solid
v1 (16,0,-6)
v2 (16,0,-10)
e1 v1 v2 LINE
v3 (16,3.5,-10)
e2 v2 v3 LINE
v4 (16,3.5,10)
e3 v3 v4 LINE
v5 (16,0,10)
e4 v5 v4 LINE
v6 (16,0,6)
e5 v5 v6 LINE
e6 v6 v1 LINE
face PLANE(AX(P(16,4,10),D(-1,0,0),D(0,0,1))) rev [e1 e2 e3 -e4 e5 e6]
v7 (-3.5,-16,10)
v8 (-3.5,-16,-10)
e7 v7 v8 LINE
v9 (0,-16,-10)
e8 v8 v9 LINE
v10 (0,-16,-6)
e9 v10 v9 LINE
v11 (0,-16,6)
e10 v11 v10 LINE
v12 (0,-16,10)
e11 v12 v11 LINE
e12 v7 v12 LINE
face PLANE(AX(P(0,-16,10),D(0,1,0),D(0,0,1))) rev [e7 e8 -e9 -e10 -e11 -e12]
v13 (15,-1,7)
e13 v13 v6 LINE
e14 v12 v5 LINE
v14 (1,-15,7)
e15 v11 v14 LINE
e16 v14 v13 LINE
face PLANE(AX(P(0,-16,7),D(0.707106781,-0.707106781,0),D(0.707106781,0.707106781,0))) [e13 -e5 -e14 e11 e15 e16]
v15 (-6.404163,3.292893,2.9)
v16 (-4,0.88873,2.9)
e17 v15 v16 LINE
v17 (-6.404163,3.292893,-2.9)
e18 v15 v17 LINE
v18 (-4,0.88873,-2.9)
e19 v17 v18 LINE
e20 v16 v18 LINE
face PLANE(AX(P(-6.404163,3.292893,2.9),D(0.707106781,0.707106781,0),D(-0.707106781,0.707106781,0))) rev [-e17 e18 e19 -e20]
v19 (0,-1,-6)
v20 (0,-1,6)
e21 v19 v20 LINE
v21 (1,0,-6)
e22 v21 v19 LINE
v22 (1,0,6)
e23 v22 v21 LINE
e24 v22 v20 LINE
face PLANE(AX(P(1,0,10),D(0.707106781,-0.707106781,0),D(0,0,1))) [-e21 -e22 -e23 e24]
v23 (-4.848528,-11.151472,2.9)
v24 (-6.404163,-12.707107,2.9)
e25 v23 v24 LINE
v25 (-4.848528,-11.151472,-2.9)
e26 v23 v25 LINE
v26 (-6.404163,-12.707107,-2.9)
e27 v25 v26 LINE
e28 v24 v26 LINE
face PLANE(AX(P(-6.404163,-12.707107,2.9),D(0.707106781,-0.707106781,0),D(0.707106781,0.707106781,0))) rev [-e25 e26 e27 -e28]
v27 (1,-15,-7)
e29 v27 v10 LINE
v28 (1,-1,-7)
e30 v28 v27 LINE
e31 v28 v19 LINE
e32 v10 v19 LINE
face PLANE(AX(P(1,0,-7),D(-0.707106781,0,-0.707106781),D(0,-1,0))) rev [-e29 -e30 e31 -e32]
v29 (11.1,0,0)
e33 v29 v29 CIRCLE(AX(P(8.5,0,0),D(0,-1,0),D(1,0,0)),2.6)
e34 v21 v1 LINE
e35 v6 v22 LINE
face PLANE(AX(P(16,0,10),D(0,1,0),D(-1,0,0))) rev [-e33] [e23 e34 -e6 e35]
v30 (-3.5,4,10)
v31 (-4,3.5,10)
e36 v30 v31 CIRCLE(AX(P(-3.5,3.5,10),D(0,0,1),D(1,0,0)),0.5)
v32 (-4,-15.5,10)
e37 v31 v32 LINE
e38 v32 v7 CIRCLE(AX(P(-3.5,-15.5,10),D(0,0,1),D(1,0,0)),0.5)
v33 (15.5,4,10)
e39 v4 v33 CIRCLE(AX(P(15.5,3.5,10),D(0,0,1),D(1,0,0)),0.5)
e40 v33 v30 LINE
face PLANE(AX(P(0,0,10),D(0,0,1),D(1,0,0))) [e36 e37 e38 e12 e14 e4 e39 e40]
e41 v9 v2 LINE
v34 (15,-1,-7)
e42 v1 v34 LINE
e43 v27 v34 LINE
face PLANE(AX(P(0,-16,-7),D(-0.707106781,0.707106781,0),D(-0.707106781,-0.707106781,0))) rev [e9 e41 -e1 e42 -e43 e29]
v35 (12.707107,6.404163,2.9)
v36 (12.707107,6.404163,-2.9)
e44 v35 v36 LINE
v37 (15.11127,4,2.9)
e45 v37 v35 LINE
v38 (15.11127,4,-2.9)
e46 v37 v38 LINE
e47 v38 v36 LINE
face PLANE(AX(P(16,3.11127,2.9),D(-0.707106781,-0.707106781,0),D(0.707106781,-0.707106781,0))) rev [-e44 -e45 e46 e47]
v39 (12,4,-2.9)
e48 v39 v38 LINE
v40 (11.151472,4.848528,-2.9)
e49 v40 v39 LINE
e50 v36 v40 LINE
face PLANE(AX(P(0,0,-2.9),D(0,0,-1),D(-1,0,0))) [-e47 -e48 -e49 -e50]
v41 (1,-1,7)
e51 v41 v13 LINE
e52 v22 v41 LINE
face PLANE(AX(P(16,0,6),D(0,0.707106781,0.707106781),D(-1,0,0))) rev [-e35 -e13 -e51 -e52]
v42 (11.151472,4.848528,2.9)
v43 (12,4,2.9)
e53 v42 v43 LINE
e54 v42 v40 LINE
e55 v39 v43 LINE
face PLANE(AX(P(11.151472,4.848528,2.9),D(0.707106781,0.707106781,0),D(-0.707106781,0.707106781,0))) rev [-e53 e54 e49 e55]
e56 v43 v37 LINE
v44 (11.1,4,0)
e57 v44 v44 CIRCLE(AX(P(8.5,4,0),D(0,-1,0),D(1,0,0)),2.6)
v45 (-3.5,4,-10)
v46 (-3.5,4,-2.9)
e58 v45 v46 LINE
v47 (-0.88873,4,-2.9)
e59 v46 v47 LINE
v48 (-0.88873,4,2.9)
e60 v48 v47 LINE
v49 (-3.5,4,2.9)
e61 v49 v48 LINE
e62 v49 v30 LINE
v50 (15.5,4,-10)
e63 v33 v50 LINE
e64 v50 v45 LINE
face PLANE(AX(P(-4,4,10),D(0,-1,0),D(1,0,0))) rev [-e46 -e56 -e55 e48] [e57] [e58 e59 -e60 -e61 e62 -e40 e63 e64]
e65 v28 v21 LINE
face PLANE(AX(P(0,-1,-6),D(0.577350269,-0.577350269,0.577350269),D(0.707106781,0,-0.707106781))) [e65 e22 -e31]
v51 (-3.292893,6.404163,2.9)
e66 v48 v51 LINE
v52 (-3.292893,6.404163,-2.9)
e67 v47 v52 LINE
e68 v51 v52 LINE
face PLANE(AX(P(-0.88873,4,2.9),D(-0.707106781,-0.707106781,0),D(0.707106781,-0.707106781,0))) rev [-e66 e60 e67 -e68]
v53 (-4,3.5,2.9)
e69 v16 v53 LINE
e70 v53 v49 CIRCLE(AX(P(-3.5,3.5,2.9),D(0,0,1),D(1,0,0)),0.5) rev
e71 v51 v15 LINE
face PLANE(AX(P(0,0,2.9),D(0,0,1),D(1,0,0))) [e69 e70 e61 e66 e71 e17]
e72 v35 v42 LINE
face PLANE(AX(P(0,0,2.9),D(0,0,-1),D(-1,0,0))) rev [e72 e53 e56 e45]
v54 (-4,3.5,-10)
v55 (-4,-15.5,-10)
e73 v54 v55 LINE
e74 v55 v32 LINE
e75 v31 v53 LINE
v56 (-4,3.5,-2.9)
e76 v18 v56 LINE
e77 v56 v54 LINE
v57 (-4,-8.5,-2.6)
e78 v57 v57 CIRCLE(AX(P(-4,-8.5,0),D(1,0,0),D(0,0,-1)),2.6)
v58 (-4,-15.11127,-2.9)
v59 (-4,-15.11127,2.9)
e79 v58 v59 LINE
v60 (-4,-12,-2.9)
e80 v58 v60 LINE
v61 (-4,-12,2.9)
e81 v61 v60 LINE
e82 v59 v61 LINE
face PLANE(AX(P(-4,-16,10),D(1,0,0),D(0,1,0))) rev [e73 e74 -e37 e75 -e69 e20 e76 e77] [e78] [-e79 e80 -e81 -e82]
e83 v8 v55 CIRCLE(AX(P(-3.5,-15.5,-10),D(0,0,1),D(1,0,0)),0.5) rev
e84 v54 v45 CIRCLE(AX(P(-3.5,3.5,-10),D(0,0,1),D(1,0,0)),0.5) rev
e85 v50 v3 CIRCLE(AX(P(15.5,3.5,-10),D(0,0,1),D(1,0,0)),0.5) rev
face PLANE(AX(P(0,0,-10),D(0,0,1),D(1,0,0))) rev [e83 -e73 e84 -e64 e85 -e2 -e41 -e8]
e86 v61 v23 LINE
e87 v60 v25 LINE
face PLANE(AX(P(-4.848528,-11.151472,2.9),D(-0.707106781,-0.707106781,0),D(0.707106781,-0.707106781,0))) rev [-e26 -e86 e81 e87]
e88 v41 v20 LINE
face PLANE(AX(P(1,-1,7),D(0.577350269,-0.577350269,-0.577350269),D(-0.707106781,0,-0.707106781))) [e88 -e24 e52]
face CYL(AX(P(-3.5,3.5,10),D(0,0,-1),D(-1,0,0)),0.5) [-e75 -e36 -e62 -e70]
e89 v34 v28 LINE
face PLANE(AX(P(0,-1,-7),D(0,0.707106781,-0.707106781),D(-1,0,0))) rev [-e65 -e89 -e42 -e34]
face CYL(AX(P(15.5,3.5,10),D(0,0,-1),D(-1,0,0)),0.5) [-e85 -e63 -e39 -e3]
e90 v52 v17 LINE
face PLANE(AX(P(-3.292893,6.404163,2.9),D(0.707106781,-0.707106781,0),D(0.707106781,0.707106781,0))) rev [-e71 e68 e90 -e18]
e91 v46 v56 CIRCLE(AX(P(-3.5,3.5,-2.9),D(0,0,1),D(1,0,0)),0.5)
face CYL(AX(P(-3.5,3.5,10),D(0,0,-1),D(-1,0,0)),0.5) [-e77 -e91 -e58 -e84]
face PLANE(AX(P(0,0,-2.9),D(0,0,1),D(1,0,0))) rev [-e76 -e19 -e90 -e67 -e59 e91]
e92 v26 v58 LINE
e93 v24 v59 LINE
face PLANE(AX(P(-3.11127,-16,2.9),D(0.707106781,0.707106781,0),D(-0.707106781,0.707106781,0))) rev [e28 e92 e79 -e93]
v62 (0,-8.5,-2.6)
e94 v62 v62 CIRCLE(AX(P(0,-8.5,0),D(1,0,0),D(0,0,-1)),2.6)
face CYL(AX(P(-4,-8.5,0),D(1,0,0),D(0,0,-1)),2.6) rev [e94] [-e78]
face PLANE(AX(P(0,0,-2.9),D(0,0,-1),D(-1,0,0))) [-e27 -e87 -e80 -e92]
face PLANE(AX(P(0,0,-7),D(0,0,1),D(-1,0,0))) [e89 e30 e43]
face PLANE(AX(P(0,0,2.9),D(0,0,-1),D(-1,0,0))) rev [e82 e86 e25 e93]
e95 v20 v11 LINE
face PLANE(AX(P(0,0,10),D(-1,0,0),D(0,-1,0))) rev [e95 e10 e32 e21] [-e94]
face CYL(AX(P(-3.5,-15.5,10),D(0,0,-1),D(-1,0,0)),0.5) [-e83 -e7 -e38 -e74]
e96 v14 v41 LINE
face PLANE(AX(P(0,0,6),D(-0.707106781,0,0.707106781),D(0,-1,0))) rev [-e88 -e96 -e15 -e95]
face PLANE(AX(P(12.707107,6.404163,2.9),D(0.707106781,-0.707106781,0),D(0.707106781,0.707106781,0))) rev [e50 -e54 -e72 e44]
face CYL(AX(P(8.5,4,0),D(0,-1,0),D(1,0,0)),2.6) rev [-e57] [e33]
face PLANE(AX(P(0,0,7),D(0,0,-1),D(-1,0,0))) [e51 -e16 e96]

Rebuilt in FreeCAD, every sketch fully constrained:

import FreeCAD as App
import Part
import Sketcher


def edges_at(feature, points):
    """Names of the edges that pass closest to the given points."""
    edges = feature.Shape.Edges
    near = lambda p: min(range(len(edges)), key=lambda i: edges[i].distToShape(Part.Vertex(*p))[0])
    return sorted({f"Edge{near(p) + 1}" for p in points})


def add_polygon(sketch, points):
    """Adds a closed chain of lines whose ends are joined by coincident constraints."""
    first, n = sketch.GeometryCount, len(points)
    for a, b in zip(points, points[1:] + points[:1]):
        sketch.addGeometry(Part.LineSegment(App.Vector(*a, 0), App.Vector(*b, 0)), False)
    for i in range(n):
        sketch.addConstraint(Sketcher.Constraint("Coincident", first + i, 2, first + (i + 1) % n, 1))

doc = App.newDocument("Part")
body = doc.addObject("PartDesign::Body", "Body")

# Sketch on XY plane
sketch1 = doc.addObject("Sketcher::SketchObject", "Sketch")
body.addObject(sketch1)
sketch1.AttachmentSupport = (doc.XY_Plane, [""])
sketch1.MapMode = "FlatFace"
add_polygon(sketch1, [(0, -16), (0, 0), (16, 0), (16, 4), (-4, 4), (-4, -16)])  # lines 0-5
sketch1.addConstraint([
    Sketcher.Constraint("Vertical", 0),
    Sketcher.Constraint("Horizontal", 1),
    Sketcher.Constraint("Vertical", 2),
    Sketcher.Constraint("Horizontal", 3),
    Sketcher.Constraint("Vertical", 4),
    Sketcher.Constraint("Horizontal", 5),
    Sketcher.Constraint("Coincident", 0, 2, -1, 1),
    Sketcher.Constraint("Equal", 1, 0),
    Sketcher.Constraint("Equal", 5, 2),
    Sketcher.Constraint("DistanceX", 1, 1, 1, 2, 16.0),
    Sketcher.Constraint("DistanceX", 3, 2, 3, 1, 20.0),
])
pad1 = doc.addObject("PartDesign::Pad", "Pad")
body.addObject(pad1)
pad1.Profile = sketch1
pad1.Length = 20
pad1.Midplane = True

# Sketch on XY plane
sketch2 = doc.addObject("Sketcher::SketchObject", "Sketch001")
body.addObject(sketch2)
sketch2.AttachmentSupport = (doc.XY_Plane, [""])
sketch2.MapMode = "FlatFace"
sketch2.AttachmentOffset = App.Placement(App.Vector(0, 0, 10), App.Rotation())
add_polygon(sketch2, [(0, 0), (0, -16), (16, 0)])  # lines 0-2
sketch2.addConstraint([
    Sketcher.Constraint("Vertical", 0),
    Sketcher.Constraint("Horizontal", 2),
    Sketcher.Constraint("Coincident", 2, 2, -1, 1),
    Sketcher.Constraint("Equal", 2, 0),
    Sketcher.Constraint("DistanceX", 2, 2, 2, 1, 16.0),
])
pad2 = doc.addObject("PartDesign::Pad", "Pad001")
body.addObject(pad2)
pad2.Profile = sketch2
pad2.Length = 3
pad2.Reversed = True
doc.recompute()

mirrored = doc.addObject("PartDesign::Mirrored", "Mirrored")
body.addObject(mirrored)
mirrored.Originals = [pad2]
mirrored.MirrorPlane = (doc.XY_Plane, [""])
body.Tip = mirrored

# Sketch on YZ plane
sketch3 = doc.addObject("Sketcher::SketchObject", "Sketch002")
body.addObject(sketch3)
sketch3.AttachmentSupport = (doc.YZ_Plane, [""])
sketch3.MapMode = "FlatFace"
sketch3.addGeometry([
    Part.Circle(App.Vector(-8.5, 0, 0), App.Vector(0, 0, 1), 2.6),
    Part.Circle(App.Vector(-8.5, -20, 0), App.Vector(0, 0, 1), 2.6),
    Part.Circle(App.Vector(11.5, -20, 0), App.Vector(0, 0, 1), 2.6),
    Part.Circle(App.Vector(11.5, 0, 0), App.Vector(0, 0, 1), 2.6),
], False)
sketch3.addConstraint([
    Sketcher.Constraint("Equal", 0, 1),
    Sketcher.Constraint("Equal", 1, 2),
    Sketcher.Constraint("Equal", 2, 3),
    Sketcher.Constraint("PointOnObject", 0, 3, -1),
    Sketcher.Constraint("PointOnObject", 3, 3, -1),
    Sketcher.Constraint("Horizontal", 1, 3, 2, 3),
    Sketcher.Constraint("Vertical", 0, 3, 1, 3),
    Sketcher.Constraint("Vertical", 2, 3, 3, 3),
    Sketcher.Constraint("Diameter", 0, 5.2),
    Sketcher.Constraint("DistanceY", 1, 3, -1, 1, 20.0),
    Sketcher.Constraint("DistanceX", 1, 3, 2, 3, 20.0),
    Sketcher.Constraint("DistanceX", 0, 3, -1, 1, 8.5),
])
pocket1 = doc.addObject("PartDesign::Pocket", "Pocket")
body.addObject(pocket1)
pocket1.Profile = sketch3
pocket1.Type = "ThroughAll"

# Sketch on XZ plane
sketch4 = doc.addObject("Sketcher::SketchObject", "Sketch003")
body.addObject(sketch4)
sketch4.AttachmentSupport = (doc.XZ_Plane, [""])
sketch4.MapMode = "FlatFace"
sketch4.addGeometry([
    Part.Circle(App.Vector(8.5, 0, 0), App.Vector(0, 0, 1), 2.6),
    Part.Circle(App.Vector(-11.5, 0, 0), App.Vector(0, 0, 1), 2.6),
    Part.Circle(App.Vector(-11.5, 20, 0), App.Vector(0, 0, 1), 2.6),
    Part.Circle(App.Vector(8.5, 20, 0), App.Vector(0, 0, 1), 2.6),
], False)
sketch4.addConstraint([
    Sketcher.Constraint("Equal", 0, 1),
    Sketcher.Constraint("Equal", 1, 2),
    Sketcher.Constraint("Equal", 2, 3),
    Sketcher.Constraint("PointOnObject", 0, 3, -1),
    Sketcher.Constraint("PointOnObject", 1, 3, -1),
    Sketcher.Constraint("Horizontal", 2, 3, 3, 3),
    Sketcher.Constraint("Vertical", 1, 3, 2, 3),
    Sketcher.Constraint("Vertical", 0, 3, 3, 3),
    Sketcher.Constraint("Diameter", 0, 5.2),
    Sketcher.Constraint("DistanceY", -1, 1, 2, 3, 20.0),
    Sketcher.Constraint("DistanceX", 1, 3, 0, 3, 20.0),
    Sketcher.Constraint("DistanceX", -1, 1, 0, 3, 8.5),
])
pocket2 = doc.addObject("PartDesign::Pocket", "Pocket001")
body.addObject(pocket2)
pocket2.Profile = sketch4
pocket2.Type = "ThroughAll"

# Sketch on XY plane
sketch5 = doc.addObject("Sketcher::SketchObject", "Sketch004")
body.addObject(sketch5)
sketch5.AttachmentSupport = (doc.XY_Plane, [""])
sketch5.MapMode = "FlatFace"
add_polygon(sketch5, [(-0.88873, 4), (-3.292893, 6.404163), (-6.404163, 3.292893), (-4, 0.88873), (-4, 4)])  # lines 0-4
add_polygon(sketch5, [(16, 3.11127), (12.707107, 6.404163), (11.151472, 4.848528), (16, 0)])  # lines 5-8
add_polygon(sketch5, [(0, -16), (-4.848528, -11.151472), (-6.404163, -12.707107), (-3.11127, -16)])  # lines 9-12
sketch5.addConstraint([
    Sketcher.Constraint("Vertical", 3),
    Sketcher.Constraint("Horizontal", 4),
    Sketcher.Constraint("Vertical", 8),
    Sketcher.Constraint("Horizontal", 12),
    Sketcher.Constraint("PointOnObject", 7, 2, -1),
    Sketcher.Constraint("PointOnObject", 12, 2, -2),
    Sketcher.Constraint("Perpendicular", 0, 1),
    Sketcher.Constraint("Perpendicular", 1, 2),
    Sketcher.Constraint("Parallel", 2, 5),
    Sketcher.Constraint("Perpendicular", 5, 6),
    Sketcher.Constraint("Perpendicular", 6, 7),
    Sketcher.Constraint("Parallel", 7, 9),
    Sketcher.Constraint("Perpendicular", 9, 10),
    Sketcher.Constraint("Perpendicular", 10, 11),
    Sketcher.Constraint("Horizontal", 0, 2, 5, 2),
    Sketcher.Constraint("Vertical", 1, 2, 10, 2),
    Sketcher.Constraint("Equal", 4, 12),
    Sketcher.Constraint("Equal", 12, 3),
    Sketcher.Constraint("Equal", 3, 8),
    Sketcher.Constraint("Equal", 0, 2),
    Sketcher.Constraint("Equal", 7, 9),
    Sketcher.Constraint("DistanceX", 2, 2, -1, 1, 4.0),
    Sketcher.Constraint("DistanceX", -1, 1, 7, 2, 16.0),
    Sketcher.Constraint("DistanceY", 11, 2, -1, 1, 16.0),
    Sketcher.Constraint("Distance", 0, 3.4),
    Sketcher.Constraint("Distance", 1, 4.4),
])
pad3 = doc.addObject("PartDesign::Pad", "Pad002")
body.addObject(pad3)
pad3.Profile = sketch5
pad3.Length = 5.8
pad3.Midplane = True
doc.recompute()

fillet = doc.addObject("PartDesign::Fillet", "Fillet")
body.addObject(fillet)
fillet.Base = (pad3, edges_at(pad3, [
    (-4, -16, 0),
    (-4, 4, 6.45),
    (16, 4, 0),
    (-4, 4, -6.45),
]))
fillet.Radius = 0.5
doc.recompute()

chamfer = doc.addObject("PartDesign::Chamfer", "Chamfer")
body.addObject(chamfer)
chamfer.Base = (fillet, edges_at(fillet, [
    (0, 0, 0),
    (0, -8, 7),
    (8, 0, 7),
    (8, 0, -7),
    (0, -8, -7),
]))
chamfer.Size = 1

doc.recompute()
